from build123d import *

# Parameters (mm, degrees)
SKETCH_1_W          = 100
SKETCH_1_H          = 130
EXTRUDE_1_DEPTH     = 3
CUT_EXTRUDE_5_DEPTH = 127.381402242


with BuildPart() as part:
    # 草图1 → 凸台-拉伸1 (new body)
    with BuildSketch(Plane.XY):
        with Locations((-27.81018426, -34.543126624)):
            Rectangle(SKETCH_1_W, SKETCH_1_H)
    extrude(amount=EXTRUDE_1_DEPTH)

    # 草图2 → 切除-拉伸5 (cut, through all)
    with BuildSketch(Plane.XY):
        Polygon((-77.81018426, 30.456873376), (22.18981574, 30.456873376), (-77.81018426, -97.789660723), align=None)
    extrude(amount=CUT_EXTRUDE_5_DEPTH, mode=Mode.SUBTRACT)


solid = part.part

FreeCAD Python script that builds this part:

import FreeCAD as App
import Part
import Sketcher
from FreeCAD import Vector

doc = App.newDocument("Part")
body = doc.addObject("PartDesign::Body", "Body")

# Sketch on XY plane
sketch1 = body.newObject("Sketcher::SketchObject", "Sketch")
sketch1.AttachmentSupport = (doc.getObject("XY_Plane"), [""])
sketch1.MapMode = "FlatFace"
sketch1.addGeometry([
    Part.LineSegment(Vector(-77.810184, 30.456873, 0), Vector(-77.810184, -99.543127, 0)),
    Part.LineSegment(Vector(-77.810184, -99.543127, 0), Vector(22.189816, -99.543127, 0)),
    Part.LineSegment(Vector(22.189816, -99.543127, 0), Vector(22.189816, 30.456873, 0)),
    Part.LineSegment(Vector(22.189816, 30.456873, 0), Vector(-77.810184, 30.456873, 0)),
], False)
sketch1.addConstraint([
    Sketcher.Constraint("Coincident", 0, 2, 1, 1),
    Sketcher.Constraint("Coincident", 1, 2, 2, 1),
    Sketcher.Constraint("Coincident", 2, 2, 3, 1),
    Sketcher.Constraint("Coincident", 3, 2, 0, 1),
    Sketcher.Constraint("Vertical", 0),
    Sketcher.Constraint("Horizontal", 1),
    Sketcher.Constraint("Vertical", 2),
    Sketcher.Constraint("Horizontal", 3),
    Sketcher.Constraint("DistanceX", 1, 1, 1, 2, 100.0),
    Sketcher.Constraint("DistanceY", 0, 2, 0, 1, 130.0),
    Sketcher.Constraint("DistanceX", 0, 2, -1, 1, 77.810184),
    Sketcher.Constraint("DistanceY", 0, 2, -1, 1, 99.543127),
])
pad1 = body.newObject("PartDesign::Pad", "Pad")
pad1.Profile = sketch1
pad1.Length = 3

# Sketch on XY plane
sketch2 = body.newObject("Sketcher::SketchObject", "Sketch001")
sketch2.AttachmentSupport = (doc.getObject("XY_Plane"), [""])
sketch2.MapMode = "FlatFace"
sketch2.addGeometry([
    Part.LineSegment(Vector(22.189816, 30.456873, 0), Vector(-77.810184, 30.456873, 0)),
    Part.LineSegment(Vector(-77.810184, 30.456873, 0), Vector(-77.810184, -97.789661, 0)),
    Part.LineSegment(Vector(-77.810184, -97.789661, 0), Vector(22.189816, 30.456873, 0)),
], False)
sketch2.addConstraint([
    Sketcher.Constraint("Coincident", 0, 2, 1, 1),
    Sketcher.Constraint("Coincident", 1, 2, 2, 1),
    Sketcher.Constraint("Coincident", 2, 2, 0, 1),
    Sketcher.Constraint("Horizontal", 0),
    Sketcher.Constraint("Vertical", 1),
    Sketcher.Constraint("DistanceX", 0, 2, 0, 1, 100.0),
    Sketcher.Constraint("Distance", 2, 162.62587),
    Sketcher.Constraint("DistanceY", 1, 2, -1, 1, 97.789661),
    Sketcher.Constraint("DistanceX", 0, 2, -1, 1, 77.810184),
])
pocket1 = body.newObject("PartDesign::Pocket", "Pocket")
pocket1.Profile = sketch2
pocket1.Type = "ThroughAll"
pocket1.Reversed = True

doc.recompute()
